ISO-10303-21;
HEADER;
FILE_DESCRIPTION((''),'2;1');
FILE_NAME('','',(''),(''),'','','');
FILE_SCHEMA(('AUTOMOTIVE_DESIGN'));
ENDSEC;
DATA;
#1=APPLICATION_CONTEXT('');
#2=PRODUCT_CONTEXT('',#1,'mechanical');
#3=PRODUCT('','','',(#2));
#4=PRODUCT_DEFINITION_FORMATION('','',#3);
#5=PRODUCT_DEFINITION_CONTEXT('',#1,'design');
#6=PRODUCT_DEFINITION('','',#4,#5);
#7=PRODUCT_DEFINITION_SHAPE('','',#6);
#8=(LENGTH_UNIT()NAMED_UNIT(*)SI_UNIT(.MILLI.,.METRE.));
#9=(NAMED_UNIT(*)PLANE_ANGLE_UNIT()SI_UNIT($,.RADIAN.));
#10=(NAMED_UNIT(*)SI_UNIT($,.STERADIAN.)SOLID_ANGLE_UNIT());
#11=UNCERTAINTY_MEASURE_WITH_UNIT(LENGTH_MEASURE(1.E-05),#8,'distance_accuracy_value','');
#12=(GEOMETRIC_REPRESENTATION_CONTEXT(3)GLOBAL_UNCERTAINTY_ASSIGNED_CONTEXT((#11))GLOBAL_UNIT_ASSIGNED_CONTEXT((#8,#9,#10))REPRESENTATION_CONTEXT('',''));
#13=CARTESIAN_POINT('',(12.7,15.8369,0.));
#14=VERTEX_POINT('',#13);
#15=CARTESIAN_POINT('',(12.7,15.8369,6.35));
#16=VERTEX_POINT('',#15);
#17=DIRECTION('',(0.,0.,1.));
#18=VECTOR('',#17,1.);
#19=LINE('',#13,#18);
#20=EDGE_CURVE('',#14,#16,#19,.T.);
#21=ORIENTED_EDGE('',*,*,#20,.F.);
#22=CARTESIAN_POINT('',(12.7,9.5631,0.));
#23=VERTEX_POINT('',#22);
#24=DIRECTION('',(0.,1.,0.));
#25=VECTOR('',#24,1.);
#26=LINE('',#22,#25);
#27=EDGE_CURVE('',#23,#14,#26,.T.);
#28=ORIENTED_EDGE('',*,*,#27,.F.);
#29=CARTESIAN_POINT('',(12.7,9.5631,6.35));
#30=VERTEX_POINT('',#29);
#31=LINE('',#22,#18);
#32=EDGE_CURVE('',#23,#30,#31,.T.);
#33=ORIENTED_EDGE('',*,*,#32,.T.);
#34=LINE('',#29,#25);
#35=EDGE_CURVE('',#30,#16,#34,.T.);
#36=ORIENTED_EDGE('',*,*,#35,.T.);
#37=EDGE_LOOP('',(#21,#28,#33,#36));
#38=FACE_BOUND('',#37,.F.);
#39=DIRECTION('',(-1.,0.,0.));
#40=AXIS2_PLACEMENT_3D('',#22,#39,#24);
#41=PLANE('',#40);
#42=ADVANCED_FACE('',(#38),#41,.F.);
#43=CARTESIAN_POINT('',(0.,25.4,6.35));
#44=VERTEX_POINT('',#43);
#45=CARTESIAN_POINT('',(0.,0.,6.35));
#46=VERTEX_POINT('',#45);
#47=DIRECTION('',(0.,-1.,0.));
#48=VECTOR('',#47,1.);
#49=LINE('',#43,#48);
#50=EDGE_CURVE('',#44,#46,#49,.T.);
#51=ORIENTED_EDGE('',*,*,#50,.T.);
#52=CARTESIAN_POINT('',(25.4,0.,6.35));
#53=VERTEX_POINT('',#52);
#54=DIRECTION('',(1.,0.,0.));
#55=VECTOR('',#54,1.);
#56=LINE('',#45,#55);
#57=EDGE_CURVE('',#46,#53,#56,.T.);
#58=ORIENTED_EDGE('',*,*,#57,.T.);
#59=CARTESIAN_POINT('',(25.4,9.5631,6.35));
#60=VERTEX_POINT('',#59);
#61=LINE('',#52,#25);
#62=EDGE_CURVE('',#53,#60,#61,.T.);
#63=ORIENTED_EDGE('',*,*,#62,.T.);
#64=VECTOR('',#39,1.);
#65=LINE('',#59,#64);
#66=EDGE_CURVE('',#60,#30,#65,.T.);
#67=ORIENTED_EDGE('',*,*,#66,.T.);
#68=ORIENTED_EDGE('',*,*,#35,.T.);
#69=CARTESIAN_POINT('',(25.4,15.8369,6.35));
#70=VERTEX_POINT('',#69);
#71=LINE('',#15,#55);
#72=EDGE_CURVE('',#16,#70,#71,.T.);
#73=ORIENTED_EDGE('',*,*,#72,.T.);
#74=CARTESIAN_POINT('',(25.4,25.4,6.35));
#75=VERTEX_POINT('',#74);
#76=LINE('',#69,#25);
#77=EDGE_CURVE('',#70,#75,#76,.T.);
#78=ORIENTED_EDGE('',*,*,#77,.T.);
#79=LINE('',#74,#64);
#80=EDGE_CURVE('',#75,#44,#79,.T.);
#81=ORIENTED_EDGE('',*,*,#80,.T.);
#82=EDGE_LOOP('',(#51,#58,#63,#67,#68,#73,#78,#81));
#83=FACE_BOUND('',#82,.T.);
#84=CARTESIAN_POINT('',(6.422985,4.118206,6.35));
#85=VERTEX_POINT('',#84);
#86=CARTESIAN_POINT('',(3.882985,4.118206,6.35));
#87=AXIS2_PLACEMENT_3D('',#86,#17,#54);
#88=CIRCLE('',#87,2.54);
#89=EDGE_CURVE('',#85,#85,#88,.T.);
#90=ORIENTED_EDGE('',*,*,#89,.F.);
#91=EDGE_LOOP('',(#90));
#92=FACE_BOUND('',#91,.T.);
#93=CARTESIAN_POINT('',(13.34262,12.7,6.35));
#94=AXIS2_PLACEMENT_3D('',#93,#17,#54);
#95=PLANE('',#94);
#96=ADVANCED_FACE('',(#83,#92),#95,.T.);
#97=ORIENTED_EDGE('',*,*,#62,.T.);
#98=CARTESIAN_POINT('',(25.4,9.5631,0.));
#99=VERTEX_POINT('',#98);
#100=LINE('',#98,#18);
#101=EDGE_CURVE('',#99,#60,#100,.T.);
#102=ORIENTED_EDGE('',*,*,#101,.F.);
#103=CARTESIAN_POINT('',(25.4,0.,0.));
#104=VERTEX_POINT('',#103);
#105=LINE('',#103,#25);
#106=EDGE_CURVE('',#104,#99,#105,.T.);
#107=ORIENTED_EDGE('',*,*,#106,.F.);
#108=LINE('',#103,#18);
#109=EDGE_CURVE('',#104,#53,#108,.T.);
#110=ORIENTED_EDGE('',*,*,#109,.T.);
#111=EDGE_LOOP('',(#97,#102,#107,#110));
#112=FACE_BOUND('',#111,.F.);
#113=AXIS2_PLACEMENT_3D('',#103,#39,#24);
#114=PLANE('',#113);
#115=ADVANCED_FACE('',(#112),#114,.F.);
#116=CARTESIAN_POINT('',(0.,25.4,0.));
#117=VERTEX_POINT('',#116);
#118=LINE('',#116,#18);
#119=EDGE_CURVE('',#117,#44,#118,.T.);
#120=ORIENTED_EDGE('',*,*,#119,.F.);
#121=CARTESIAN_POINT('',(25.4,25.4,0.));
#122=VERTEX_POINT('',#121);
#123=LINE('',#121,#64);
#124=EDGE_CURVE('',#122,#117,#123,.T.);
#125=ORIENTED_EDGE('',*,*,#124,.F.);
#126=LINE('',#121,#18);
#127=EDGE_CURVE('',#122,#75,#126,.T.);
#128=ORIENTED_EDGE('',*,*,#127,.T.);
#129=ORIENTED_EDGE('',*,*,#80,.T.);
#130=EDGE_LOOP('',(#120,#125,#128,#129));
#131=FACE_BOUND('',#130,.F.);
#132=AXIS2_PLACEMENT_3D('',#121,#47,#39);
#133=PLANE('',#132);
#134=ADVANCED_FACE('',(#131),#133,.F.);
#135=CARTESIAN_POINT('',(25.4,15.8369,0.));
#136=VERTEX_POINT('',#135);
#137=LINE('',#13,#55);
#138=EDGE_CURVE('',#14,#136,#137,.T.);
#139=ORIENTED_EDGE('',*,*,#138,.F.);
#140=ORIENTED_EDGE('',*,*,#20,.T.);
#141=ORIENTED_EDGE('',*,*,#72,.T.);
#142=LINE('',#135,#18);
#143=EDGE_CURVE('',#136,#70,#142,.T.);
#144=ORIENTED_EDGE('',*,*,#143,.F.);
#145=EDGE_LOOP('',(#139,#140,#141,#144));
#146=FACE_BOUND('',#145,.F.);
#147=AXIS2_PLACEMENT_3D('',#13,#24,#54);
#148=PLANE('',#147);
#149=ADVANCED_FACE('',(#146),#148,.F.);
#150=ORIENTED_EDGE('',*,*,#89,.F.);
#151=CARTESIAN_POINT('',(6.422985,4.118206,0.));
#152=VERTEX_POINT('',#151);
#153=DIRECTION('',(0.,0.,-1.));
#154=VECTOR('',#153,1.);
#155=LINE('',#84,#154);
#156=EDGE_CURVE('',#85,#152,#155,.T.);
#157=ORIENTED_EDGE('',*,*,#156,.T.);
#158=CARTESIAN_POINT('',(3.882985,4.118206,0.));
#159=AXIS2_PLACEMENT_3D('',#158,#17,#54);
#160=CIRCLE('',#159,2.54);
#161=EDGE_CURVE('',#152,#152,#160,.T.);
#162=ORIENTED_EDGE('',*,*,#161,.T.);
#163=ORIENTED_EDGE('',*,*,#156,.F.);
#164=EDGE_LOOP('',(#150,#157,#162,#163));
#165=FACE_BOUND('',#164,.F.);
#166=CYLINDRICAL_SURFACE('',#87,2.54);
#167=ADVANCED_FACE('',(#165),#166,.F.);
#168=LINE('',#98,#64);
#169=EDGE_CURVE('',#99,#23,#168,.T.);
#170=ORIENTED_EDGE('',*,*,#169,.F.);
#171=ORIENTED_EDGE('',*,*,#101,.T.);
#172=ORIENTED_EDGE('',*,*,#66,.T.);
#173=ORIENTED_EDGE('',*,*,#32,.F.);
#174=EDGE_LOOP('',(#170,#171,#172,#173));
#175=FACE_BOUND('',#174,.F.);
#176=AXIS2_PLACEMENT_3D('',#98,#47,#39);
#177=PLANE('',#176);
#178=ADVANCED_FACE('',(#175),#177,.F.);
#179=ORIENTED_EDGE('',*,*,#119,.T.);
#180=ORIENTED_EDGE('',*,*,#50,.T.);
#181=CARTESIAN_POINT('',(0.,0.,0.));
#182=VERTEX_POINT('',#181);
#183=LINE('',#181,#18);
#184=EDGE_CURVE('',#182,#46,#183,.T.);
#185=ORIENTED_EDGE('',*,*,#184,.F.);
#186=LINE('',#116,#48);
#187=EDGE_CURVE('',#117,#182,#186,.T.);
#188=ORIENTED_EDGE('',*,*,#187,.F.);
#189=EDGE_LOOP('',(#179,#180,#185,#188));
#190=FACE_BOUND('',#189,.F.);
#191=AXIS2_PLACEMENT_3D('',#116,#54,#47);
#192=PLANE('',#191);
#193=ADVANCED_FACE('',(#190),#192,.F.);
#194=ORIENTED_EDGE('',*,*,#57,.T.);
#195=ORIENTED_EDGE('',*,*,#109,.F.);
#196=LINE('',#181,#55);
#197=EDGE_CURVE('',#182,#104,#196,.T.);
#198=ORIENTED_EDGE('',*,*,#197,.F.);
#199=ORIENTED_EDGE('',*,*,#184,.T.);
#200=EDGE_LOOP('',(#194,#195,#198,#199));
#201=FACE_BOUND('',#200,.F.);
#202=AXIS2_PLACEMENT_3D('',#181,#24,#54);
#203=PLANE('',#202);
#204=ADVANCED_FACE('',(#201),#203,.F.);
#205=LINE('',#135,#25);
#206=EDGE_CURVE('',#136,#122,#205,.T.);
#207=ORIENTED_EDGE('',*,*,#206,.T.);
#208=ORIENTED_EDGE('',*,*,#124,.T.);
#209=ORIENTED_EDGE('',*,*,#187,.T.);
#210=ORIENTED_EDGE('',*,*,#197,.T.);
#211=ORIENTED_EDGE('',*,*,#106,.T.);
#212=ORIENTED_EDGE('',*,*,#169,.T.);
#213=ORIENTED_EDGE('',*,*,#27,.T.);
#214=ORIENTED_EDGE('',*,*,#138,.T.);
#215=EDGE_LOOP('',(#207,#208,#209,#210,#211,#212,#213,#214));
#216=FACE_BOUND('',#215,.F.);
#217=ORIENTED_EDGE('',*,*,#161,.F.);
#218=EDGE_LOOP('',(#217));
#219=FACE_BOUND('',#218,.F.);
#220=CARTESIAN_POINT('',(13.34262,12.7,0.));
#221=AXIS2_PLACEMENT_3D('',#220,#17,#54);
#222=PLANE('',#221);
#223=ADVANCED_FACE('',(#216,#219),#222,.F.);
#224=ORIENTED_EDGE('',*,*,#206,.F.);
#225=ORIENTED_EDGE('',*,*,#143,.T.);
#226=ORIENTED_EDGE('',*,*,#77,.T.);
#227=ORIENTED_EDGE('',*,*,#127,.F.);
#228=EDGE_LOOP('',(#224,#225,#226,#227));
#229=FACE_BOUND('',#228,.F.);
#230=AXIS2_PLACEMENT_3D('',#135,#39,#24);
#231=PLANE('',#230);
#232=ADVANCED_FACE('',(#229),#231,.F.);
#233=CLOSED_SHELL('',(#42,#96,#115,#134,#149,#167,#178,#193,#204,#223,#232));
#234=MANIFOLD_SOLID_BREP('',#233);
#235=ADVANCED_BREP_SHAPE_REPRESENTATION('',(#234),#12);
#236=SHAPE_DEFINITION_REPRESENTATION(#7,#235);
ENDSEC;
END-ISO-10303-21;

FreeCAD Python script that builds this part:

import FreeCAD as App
import Part
import Sketcher
from FreeCAD import Vector
Q = App.Units.Quantity

doc = App.newDocument("Part")
body = doc.addObject("PartDesign::Body", "Body")

sketch1 = body.newObject("Sketcher::SketchObject", "Sketch")
sketch1.AttachmentSupport = (doc.getObject("XY_Plane"), [""])
sketch1.MapMode = "FlatFace"
sketch1.addGeometry([
    Part.LineSegment(Vector(0, 25, 0), Vector(0, 0, 0)),
    Part.LineSegment(Vector(0, 0, 0), Vector(25, 0, 0)),
    Part.LineSegment(Vector(25, 0, 0), Vector(25, 10, 0)),
    Part.LineSegment(Vector(25, 10, 0), Vector(13, 10, 0)),
    Part.LineSegment(Vector(13, 10, 0), Vector(13, 16, 0)),
    Part.LineSegment(Vector(13, 16, 0), Vector(25, 16, 0)),
    Part.LineSegment(Vector(25, 16, 0), Vector(25, 25, 0)),
    Part.LineSegment(Vector(25, 25, 0), Vector(0, 25, 0)),
], False)
sketch1.addConstraint([
    Sketcher.Constraint("Coincident", 0, 2, 1, 1),
    Sketcher.Constraint("Coincident", 1, 2, 2, 1),
    Sketcher.Constraint("Coincident", 2, 2, 3, 1),
    Sketcher.Constraint("Coincident", 3, 2, 4, 1),
    Sketcher.Constraint("Coincident", 4, 2, 5, 1),
    Sketcher.Constraint("Coincident", 5, 2, 6, 1),
    Sketcher.Constraint("Coincident", 6, 2, 7, 1),
    Sketcher.Constraint("Coincident", 7, 2, 0, 1),
    Sketcher.Constraint("Vertical", 0),
    Sketcher.Constraint("Horizontal", 1),
    Sketcher.Constraint("Vertical", 2),
    Sketcher.Constraint("Horizontal", 3),
    Sketcher.Constraint("Vertical", 4),
    Sketcher.Constraint("Horizontal", 5),
    Sketcher.Constraint("Vertical", 6),
    Sketcher.Constraint("Horizontal", 7),
    Sketcher.Constraint("Coincident", 0, 2, -1, 1),
    Sketcher.Constraint("Vertical", 2, 2, 5, 2),
    Sketcher.Constraint("Equal", 7, 0),
    Sketcher.Constraint("Equal", 2, 6),
    Sketcher.Constraint("DistanceX", 1, 1, 1, 2, Q("1 in")),
    Sketcher.Constraint("DistanceX", 3, 2, 3, 1, Q("0.5 in")),
    Sketcher.Constraint("DistanceY", 4, 1, 4, 2, Q("0.247 in")),
])
pad1 = body.newObject("PartDesign::Pad", "Pad")
pad1.Profile = sketch1
pad1.Length = Q("0.25 in")

sketch2 = body.newObject("Sketcher::SketchObject", "Sketch001")
sketch2.AttachmentSupport = (doc.getObject("XY_Plane"), [""])
sketch2.MapMode = "FlatFace"
sketch2.AttachmentOffset = App.Placement(Vector(0, 0, 0.25 * 25.4), App.Rotation())
sketch2.addGeometry(Part.Circle(Vector(3.9, 4.1, 0), Vector(0, 0, 1), 2.5), False)
sketch2.addConstraint([
    Sketcher.Constraint("Diameter", 0, Q("0.2 in")),
    Sketcher.Constraint("DistanceX", -1, 1, 0, 3, Q("3.882985 mm")),
    Sketcher.Constraint("DistanceY", -1, 1, 0, 3, Q("4.118206 mm")),
])
pocket1 = body.newObject("PartDesign::Pocket", "Pocket")
pocket1.Profile = sketch2
pocket1.Type = "ThroughAll"

doc.recompute()
